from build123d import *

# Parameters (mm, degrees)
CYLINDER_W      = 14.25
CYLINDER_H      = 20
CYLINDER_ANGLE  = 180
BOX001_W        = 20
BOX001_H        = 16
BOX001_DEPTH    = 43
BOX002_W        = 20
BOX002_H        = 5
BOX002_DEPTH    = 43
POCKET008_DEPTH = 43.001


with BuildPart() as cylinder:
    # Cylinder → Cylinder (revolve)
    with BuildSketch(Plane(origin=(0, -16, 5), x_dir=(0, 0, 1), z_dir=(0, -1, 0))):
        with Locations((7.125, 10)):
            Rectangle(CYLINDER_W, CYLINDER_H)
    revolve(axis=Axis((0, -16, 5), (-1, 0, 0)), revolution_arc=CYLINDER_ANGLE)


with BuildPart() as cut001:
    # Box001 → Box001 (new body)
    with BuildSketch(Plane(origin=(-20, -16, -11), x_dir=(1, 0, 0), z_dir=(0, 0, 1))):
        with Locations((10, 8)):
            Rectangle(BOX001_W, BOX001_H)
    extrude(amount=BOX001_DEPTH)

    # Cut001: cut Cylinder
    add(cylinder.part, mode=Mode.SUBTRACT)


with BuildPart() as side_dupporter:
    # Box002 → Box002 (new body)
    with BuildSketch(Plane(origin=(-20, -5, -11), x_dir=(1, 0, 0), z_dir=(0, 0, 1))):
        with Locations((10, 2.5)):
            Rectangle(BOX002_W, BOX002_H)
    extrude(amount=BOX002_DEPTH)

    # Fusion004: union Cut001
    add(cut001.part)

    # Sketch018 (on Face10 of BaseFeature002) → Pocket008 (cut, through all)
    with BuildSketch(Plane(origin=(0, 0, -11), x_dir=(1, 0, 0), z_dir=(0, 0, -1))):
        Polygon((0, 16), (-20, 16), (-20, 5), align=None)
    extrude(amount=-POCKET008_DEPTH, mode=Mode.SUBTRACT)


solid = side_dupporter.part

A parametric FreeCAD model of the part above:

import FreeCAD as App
import Part
import Sketcher
from FreeCAD import Vector


def add_polygon(sketch, points):
    """Adds a closed chain of lines whose ends are joined by coincident constraints."""
    first, n = sketch.GeometryCount, len(points)
    for a, b in zip(points, points[1:] + points[:1]):
        sketch.addGeometry(Part.LineSegment(App.Vector(*a, 0), App.Vector(*b, 0)), False)
    for i in range(n):
        sketch.addConstraint(Sketcher.Constraint("Coincident", first + i, 2, first + (i + 1) % n, 1))

doc = App.newDocument("Part")
body = doc.addObject("PartDesign::Body", "Body")

sketch1 = body.newObject("Sketcher::SketchObject", "Sketch")
sketch1.AttachmentSupport = (doc.getObject("XZ_Plane"), [""])
sketch1.MapMode = "FlatFace"
sketch1.AttachmentOffset = App.Placement(Vector(0, 0, 16), App.Rotation())
add_polygon(sketch1, [(-20, 5), (0, 5), (0, 19.25), (-20, 19.25)])
sketch1.addGeometry(Part.LineSegment(Vector(0, 5, 0), Vector(-20, 5, 0)), True)
sketch1.addConstraint([
    Sketcher.Constraint("Horizontal", 0),
    Sketcher.Constraint("Vertical", 1),
    Sketcher.Constraint("Horizontal", 2),
    Sketcher.Constraint("Vertical", 3),
    Sketcher.Constraint("Horizontal", 4),
    Sketcher.Constraint("Coincident", 4, 1, 0, 2),
    Sketcher.Constraint("PointOnObject", 0, 2, -2),
    Sketcher.Constraint("Vertical", 2, 2, 4, 2),
    Sketcher.Constraint("DistanceX", 0, 1, 0, 2, 20.0),
    Sketcher.Constraint("DistanceY", -1, 1, 0, 2, 5.0),
    Sketcher.Constraint("DistanceY", 1, 1, 1, 2, 14.25),
])
revolution = body.newObject("PartDesign::Revolution", "Revolution")
revolution.Profile = sketch1
revolution.ReferenceAxis = (sketch1, ["Axis0"])
revolution.Angle = 180
body2 = doc.addObject("PartDesign::Body", "Body001")

sketch2 = body2.newObject("Sketcher::SketchObject", "Sketch001")
sketch2.AttachmentSupport = (doc.getObject("XY_Plane001"), [""])
sketch2.MapMode = "FlatFace"
sketch2.AttachmentOffset = App.Placement(Vector(0, 0, -11), App.Rotation())
add_polygon(sketch2, [(-20, 0), (-20, -16), (0, -16), (0, 0)])
sketch2.addConstraint([
    Sketcher.Constraint("Vertical", 0),
    Sketcher.Constraint("Horizontal", 1),
    Sketcher.Constraint("Vertical", 2),
    Sketcher.Constraint("Horizontal", 3),
    Sketcher.Constraint("Coincident", 2, 2, -1, 1),
    Sketcher.Constraint("DistanceX", 1, 1, 1, 2, 20.0),
    Sketcher.Constraint("DistanceY", 0, 2, 0, 1, 16.0),
])
pad1 = body2.newObject("PartDesign::Pad", "Pad")
pad1.Profile = sketch2
pad1.Length = 43
doc.recompute()

boolean = body2.newObject("PartDesign::Boolean", "Boolean")
boolean.Type = "Cut"
boolean.addObjects([body])
body3 = doc.addObject("PartDesign::Body", "Body002")

sketch3 = body3.newObject("Sketcher::SketchObject", "Sketch002")
sketch3.AttachmentSupport = (doc.getObject("XY_Plane002"), [""])
sketch3.MapMode = "FlatFace"
sketch3.AttachmentOffset = App.Placement(Vector(0, 0, -11), App.Rotation())
add_polygon(sketch3, [(-20, 0), (-20, -5), (0, -5), (0, 0)])
sketch3.addConstraint([
    Sketcher.Constraint("Vertical", 0),
    Sketcher.Constraint("Horizontal", 1),
    Sketcher.Constraint("Vertical", 2),
    Sketcher.Constraint("Horizontal", 3),
    Sketcher.Constraint("Coincident", 2, 2, -1, 1),
    Sketcher.Constraint("DistanceX", 1, 1, 1, 2, 20.0),
    Sketcher.Constraint("DistanceY", 0, 2, 0, 1, 5.0),
])
pad2 = body3.newObject("PartDesign::Pad", "Pad001")
pad2.Profile = sketch3
pad2.Length = 43
doc.recompute()

boolean2 = body3.newObject("PartDesign::Boolean", "Boolean001")
boolean2.Type = "Fuse"
boolean2.addObjects([body2])

sketch4 = body3.newObject("Sketcher::SketchObject", "Sketch003")
sketch4.AttachmentSupport = (doc.getObject("XY_Plane002"), [""])
sketch4.MapMode = "FlatFace"
sketch4.AttachmentOffset = App.Placement(Vector(0, 0, -11), App.Rotation())
add_polygon(sketch4, [(0, -16), (-20, -16), (-20, -5)])
sketch4.addConstraint([
    Sketcher.Constraint("Horizontal", 0),
    Sketcher.Constraint("Vertical", 1),
    Sketcher.Constraint("PointOnObject", 2, 2, -2),
    Sketcher.Constraint("DistanceX", 0, 2, 0, 1, 20.0),
    Sketcher.Constraint("DistanceY", 1, 1, 1, 2, 11.0),
    Sketcher.Constraint("DistanceY", 0, 2, -1, 1, 16.0),
])
pocket1 = body3.newObject("PartDesign::Pocket", "Pocket")
pocket1.Profile = sketch4
pocket1.Type = "ThroughAll"
pocket1.Reversed = True

doc.recompute()
